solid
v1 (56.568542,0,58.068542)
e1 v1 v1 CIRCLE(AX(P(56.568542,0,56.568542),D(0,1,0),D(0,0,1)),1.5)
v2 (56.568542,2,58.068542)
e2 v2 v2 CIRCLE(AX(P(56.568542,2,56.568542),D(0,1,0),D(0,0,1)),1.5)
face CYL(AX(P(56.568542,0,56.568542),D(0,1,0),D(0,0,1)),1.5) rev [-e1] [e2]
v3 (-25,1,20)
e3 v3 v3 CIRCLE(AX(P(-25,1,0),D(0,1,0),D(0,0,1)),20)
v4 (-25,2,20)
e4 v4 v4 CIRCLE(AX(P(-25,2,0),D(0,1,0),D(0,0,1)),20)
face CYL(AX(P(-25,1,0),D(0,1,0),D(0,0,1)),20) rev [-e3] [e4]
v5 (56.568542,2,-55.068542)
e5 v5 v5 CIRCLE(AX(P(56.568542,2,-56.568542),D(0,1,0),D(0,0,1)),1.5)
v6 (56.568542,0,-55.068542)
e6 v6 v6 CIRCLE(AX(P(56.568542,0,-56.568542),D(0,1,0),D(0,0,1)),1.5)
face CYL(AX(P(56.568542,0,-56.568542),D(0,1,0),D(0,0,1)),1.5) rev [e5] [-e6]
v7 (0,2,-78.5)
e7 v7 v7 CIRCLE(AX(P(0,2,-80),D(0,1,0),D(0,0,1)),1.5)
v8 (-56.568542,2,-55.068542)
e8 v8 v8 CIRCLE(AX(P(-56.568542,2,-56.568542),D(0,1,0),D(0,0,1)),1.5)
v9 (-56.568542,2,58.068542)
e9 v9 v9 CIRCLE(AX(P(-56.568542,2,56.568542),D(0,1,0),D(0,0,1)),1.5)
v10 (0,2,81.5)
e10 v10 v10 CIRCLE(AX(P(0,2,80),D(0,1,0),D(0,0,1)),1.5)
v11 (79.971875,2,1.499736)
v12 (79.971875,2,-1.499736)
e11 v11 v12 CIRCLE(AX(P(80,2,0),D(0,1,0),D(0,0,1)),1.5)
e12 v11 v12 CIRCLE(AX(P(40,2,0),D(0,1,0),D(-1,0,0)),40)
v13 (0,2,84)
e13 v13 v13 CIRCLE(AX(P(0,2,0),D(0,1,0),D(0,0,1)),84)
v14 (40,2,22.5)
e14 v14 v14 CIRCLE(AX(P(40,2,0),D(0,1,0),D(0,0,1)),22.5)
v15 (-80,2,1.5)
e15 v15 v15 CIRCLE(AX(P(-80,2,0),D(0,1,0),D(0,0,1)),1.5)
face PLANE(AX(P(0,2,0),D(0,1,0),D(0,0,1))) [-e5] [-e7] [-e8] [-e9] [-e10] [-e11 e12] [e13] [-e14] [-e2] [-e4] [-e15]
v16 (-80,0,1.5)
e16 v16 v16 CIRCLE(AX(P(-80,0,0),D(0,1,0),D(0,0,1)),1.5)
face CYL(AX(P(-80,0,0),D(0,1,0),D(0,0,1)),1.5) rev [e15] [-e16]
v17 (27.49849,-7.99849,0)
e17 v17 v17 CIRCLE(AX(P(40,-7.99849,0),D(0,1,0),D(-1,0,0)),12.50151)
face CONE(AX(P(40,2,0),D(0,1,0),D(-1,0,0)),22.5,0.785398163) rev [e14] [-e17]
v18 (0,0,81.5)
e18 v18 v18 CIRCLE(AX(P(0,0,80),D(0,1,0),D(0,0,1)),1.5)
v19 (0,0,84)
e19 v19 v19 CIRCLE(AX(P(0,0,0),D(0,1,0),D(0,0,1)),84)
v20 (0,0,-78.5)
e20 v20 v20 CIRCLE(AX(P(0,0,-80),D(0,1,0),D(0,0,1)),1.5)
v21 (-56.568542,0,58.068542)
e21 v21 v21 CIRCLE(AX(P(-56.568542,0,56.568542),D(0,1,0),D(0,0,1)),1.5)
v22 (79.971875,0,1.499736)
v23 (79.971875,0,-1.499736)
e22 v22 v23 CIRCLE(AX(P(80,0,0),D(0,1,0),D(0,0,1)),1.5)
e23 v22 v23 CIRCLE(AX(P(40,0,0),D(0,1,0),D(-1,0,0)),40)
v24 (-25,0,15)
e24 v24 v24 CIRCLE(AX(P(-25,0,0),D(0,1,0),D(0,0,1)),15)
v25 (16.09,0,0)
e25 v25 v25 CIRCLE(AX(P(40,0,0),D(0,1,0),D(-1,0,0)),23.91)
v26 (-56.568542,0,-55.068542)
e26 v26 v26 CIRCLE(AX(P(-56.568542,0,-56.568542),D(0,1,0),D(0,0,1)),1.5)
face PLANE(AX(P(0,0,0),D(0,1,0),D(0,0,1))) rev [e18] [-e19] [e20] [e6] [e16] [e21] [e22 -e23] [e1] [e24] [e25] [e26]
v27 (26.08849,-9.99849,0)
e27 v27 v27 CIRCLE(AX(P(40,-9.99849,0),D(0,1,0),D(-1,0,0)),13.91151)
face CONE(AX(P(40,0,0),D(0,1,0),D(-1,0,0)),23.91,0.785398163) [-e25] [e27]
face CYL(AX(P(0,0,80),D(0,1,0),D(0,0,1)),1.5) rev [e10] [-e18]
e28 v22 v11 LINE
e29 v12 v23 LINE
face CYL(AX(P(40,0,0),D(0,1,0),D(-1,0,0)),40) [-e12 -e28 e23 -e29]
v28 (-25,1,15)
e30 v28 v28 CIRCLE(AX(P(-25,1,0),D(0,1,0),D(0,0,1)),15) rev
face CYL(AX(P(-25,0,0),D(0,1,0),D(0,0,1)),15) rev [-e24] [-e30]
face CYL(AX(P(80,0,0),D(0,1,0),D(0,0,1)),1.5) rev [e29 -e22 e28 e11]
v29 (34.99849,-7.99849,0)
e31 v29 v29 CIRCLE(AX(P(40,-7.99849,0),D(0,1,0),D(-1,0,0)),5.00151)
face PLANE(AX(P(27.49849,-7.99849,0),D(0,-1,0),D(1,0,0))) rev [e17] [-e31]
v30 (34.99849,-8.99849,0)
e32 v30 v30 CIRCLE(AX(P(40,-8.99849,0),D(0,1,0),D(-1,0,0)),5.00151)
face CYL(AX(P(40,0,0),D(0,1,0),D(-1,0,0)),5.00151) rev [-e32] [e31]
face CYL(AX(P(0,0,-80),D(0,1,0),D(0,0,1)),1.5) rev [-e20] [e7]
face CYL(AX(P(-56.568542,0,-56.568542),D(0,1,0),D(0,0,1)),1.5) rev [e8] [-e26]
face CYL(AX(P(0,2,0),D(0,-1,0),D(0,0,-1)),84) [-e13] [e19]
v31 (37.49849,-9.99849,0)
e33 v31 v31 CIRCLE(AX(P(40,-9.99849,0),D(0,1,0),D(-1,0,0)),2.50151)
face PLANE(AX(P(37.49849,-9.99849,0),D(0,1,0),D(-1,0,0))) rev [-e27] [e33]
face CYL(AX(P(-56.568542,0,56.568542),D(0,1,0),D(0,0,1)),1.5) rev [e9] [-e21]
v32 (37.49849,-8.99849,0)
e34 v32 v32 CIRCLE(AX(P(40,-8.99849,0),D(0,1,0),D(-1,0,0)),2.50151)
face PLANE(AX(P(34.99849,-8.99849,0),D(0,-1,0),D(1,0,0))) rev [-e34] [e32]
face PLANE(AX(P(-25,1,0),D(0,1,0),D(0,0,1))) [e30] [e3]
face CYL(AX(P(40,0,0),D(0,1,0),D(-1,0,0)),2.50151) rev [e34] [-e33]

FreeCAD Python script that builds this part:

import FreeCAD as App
import Part
import Sketcher
from FreeCAD import Vector
Q = App.Units.Quantity


def add_polygon(sketch, points):
    """Adds a closed chain of lines whose ends are joined by coincident constraints."""
    first, n = sketch.GeometryCount, len(points)
    for a, b in zip(points, points[1:] + points[:1]):
        sketch.addGeometry(Part.LineSegment(App.Vector(*a, 0), App.Vector(*b, 0)), False)
    for i in range(n):
        sketch.addConstraint(Sketcher.Constraint("Coincident", first + i, 2, first + (i + 1) % n, 1))

doc = App.newDocument("Part")
params = doc.addObject("Spreadsheet::Sheet", "Params")
for row, (alias, value) in enumerate([
    ("sketch1_diameter", "168 mm"),
    ("pad1_length", "2 mm"),
    ("sketch2_diameter", "3 mm"),
    ("pocket1_length", "2 mm"),
    ("sketch3_diameter", "30 mm"),
    ("sketch3_diameter2", "45 mm"),
    ("pocket2_length", "2 mm"),
    ("sketch4_diameter", "40 mm"),
    ("pocket3_length", "1 mm"),
    ("sketch5_height", "2 mm"),
    ("sketch5_width", "17.5 mm"),
    ("sketch5_width2", "2.5 mm"),
    ("sketch5_width3", "7.5 mm"),
    ("sketch5_width4", "16.09 mm"),
    ("revolution_angle", "360 deg"),
], start=1):
    params.set(f"A{row}", alias)
    params.set(f"B{row}", "=" + value)
    params.setAlias(f"B{row}", alias)

body = doc.addObject("PartDesign::Body", "Body")

sketch1 = doc.addObject("Sketcher::SketchObject", "Sketch")
body.addObject(sketch1)
sketch1.AttachmentSupport = (doc.XZ_Plane, [""])
sketch1.MapMode = "FlatFace"
sketch1.addGeometry(Part.Circle(Vector(0, 0, 0), Vector(0, 0, 1), 84), False)
sketch1.addConstraint([
    Sketcher.Constraint("Coincident", 0, 3, -1, 1),
    Sketcher.Constraint("Diameter", 0, Q("168 mm")),
])
sketch1.setExpression("Constraints[1]", "Params.sketch1_diameter")
pad1 = doc.addObject("PartDesign::Pad", "Pad")
body.addObject(pad1)
pad1.Profile = sketch1
pad1.setExpression("Length", "Params.pad1_length")
pad1.Reversed = True

sketch2 = doc.addObject("Sketcher::SketchObject", "Sketch001")
body.addObject(sketch2)
sketch2.AttachmentSupport = (doc.XZ_Plane, [""])
sketch2.MapMode = "FlatFace"
sketch2.AttachmentOffset = App.Placement(Vector(0, 0, -2), App.Rotation())
sketch2.addGeometry([
    Part.Circle(Vector(0, -80, 0), Vector(0, 0, 1), 1.5),
    Part.Circle(Vector(56.568542, -56.568542, 0), Vector(0, 0, 1), 1.5),
    Part.Circle(Vector(80, 0, 0), Vector(0, 0, 1), 1.5),
    Part.Circle(Vector(56.568542, 56.568542, 0), Vector(0, 0, 1), 1.5),
    Part.Circle(Vector(0, 80, 0), Vector(0, 0, 1), 1.5),
    Part.Circle(Vector(-56.568542, 56.568542, 0), Vector(0, 0, 1), 1.5),
    Part.Circle(Vector(-80, 0, 0), Vector(0, 0, 1), 1.5),
    Part.Circle(Vector(-56.568542, -56.568542, 0), Vector(0, 0, 1), 1.5),
], False)
sketch2.addConstraint([
    Sketcher.Constraint("Equal", 0, 1),
    Sketcher.Constraint("Equal", 1, 2),
    Sketcher.Constraint("Equal", 2, 3),
    Sketcher.Constraint("Equal", 3, 4),
    Sketcher.Constraint("Equal", 4, 5),
    Sketcher.Constraint("Equal", 5, 6),
    Sketcher.Constraint("Equal", 6, 7),
    Sketcher.Constraint("Symmetric", 0, 3, 4, 3, -1, 1),
    Sketcher.Constraint("Symmetric", 1, 3, 5, 3, -1, 1),
    Sketcher.Constraint("Symmetric", 2, 3, 6, 3, -1, 1),
    Sketcher.Constraint("Symmetric", 3, 3, 7, 3, -1, 1),
    Sketcher.Constraint("Symmetric", 3, 3, 5, 3, -2),
    Sketcher.Constraint("PointOnObject", 0, 3, -2),
    Sketcher.Constraint("PointOnObject", 2, 3, -1),
    Sketcher.Constraint("Diameter", 0, Q("3 mm")),
    Sketcher.Constraint("DistanceY", 0, 3, -1, 1, Q("80 mm")),
    Sketcher.Constraint("DistanceX", -1, 1, 2, 3, Q("80 mm")),
    Sketcher.Constraint("DistanceX", -1, 1, 1, 3, Q("56.568542 mm")),
    Sketcher.Constraint("DistanceY", 1, 3, -1, 1, Q("56.568542 mm")),
])
sketch2.setExpression("Constraints[14]", "Params.sketch2_diameter")
pocket1 = doc.addObject("PartDesign::Pocket", "Pocket")
body.addObject(pocket1)
pocket1.Profile = sketch2
pocket1.setExpression("Length", "Params.pocket1_length")
pocket1.Reversed = True

sketch3 = doc.addObject("Sketcher::SketchObject", "Sketch002")
body.addObject(sketch3)
sketch3.AttachmentSupport = (doc.XZ_Plane, [""])
sketch3.MapMode = "FlatFace"
sketch3.AttachmentOffset = App.Placement(Vector(0, 0, -2), App.Rotation())
sketch3.addGeometry([
    Part.Circle(Vector(-25, 0, 0), Vector(0, 0, 1), 15),
    Part.Circle(Vector(40, 0, 0), Vector(0, 0, 1), 22.5),
], False)
sketch3.addConstraint([
    Sketcher.Constraint("PointOnObject", 0, 3, -1),
    Sketcher.Constraint("PointOnObject", 1, 3, -1),
    Sketcher.Constraint("Diameter", 0, Q("30 mm")),
    Sketcher.Constraint("Diameter", 1, Q("45 mm")),
    Sketcher.Constraint("DistanceX", 0, 3, -1, 1, Q("25 mm")),
    Sketcher.Constraint("DistanceX", -1, 1, 1, 3, Q("40 mm")),
])
sketch3.setExpression("Constraints[2]", "Params.sketch3_diameter")
sketch3.setExpression("Constraints[3]", "Params.sketch3_diameter2")
pocket2 = doc.addObject("PartDesign::Pocket", "Pocket001")
body.addObject(pocket2)
pocket2.Profile = sketch3
pocket2.setExpression("Length", "Params.pocket2_length")
pocket2.Reversed = True

sketch4 = doc.addObject("Sketcher::SketchObject", "Sketch003")
body.addObject(sketch4)
sketch4.AttachmentSupport = (doc.XZ_Plane, [""])
sketch4.MapMode = "FlatFace"
sketch4.AttachmentOffset = App.Placement(Vector(0, 0, -2), App.Rotation())
sketch4.addGeometry(Part.Circle(Vector(-25, 0, 0), Vector(0, 0, 1), 20), False)
sketch4.addConstraint([
    Sketcher.Constraint("PointOnObject", 0, 3, -1),
    Sketcher.Constraint("Diameter", 0, Q("40 mm")),
    Sketcher.Constraint("DistanceX", 0, 3, -1, 1, Q("25 mm")),
])
sketch4.setExpression("Constraints[1]", "Params.sketch4_diameter")
pocket3 = doc.addObject("PartDesign::Pocket", "Pocket002")
body.addObject(pocket3)
pocket3.Profile = sketch4
pocket3.setExpression("Length", "Params.pocket3_length")
pocket3.Reversed = True

sketch5 = doc.addObject("Sketcher::SketchObject", "Sketch004")
body.addObject(sketch5)
sketch5.AttachmentSupport = (doc.XY_Plane, [""])
sketch5.MapMode = "FlatFace"
add_polygon(sketch5, [(17.5, 2), (0, 2), (0, 0), (16.09, 0), (26.08849, -9.99849), (37.49849, -9.99849), (37.49849, -8.99849), (34.99849, -8.99849), (34.99849, -7.99849), (27.49849, -7.99849)])
sketch5.addGeometry(Part.LineSegment(Vector(40, 2, 0), Vector(40, -9.99849, 0)), True)
sketch5.addConstraint([
    Sketcher.Constraint("Horizontal", 0),
    Sketcher.Constraint("Vertical", 1),
    Sketcher.Constraint("Horizontal", 2),
    Sketcher.Constraint("Horizontal", 4),
    Sketcher.Constraint("Vertical", 5),
    Sketcher.Constraint("Horizontal", 6),
    Sketcher.Constraint("Vertical", 7),
    Sketcher.Constraint("Horizontal", 8),
    Sketcher.Constraint("Vertical", 10),
    Sketcher.Constraint("Coincident", 1, 2, -1, 1),
    Sketcher.Constraint("Parallel", 3, 9),
    Sketcher.Constraint("Horizontal", 9, 2, 10, 1),
    Sketcher.Constraint("Horizontal", 4, 2, 10, 2),
    Sketcher.Constraint("Equal", 5, 7),
    Sketcher.Constraint("Equal", 3, 9),
    Sketcher.Constraint("DistanceY", 1, 2, 1, 1, Q("2 mm")),
    Sketcher.Constraint("Angle", 3, Q("-45 deg")),
    Sketcher.Constraint("DistanceX", 0, 2, 0, 1, Q("17.5 mm")),
    Sketcher.Constraint("DistanceX", 6, 2, 6, 1, Q("2.5 mm")),
    Sketcher.Constraint("DistanceX", 8, 2, 8, 1, Q("7.5 mm")),
    Sketcher.Constraint("DistanceX", -1, 1, 10, 1, Q("40 mm")),
    Sketcher.Constraint("DistanceX", 2, 1, 2, 2, Q("16.09 mm")),
    Sketcher.Constraint("Distance", 3, Q("14.14 mm")),
])
sketch5.setExpression("Constraints[25]", "Params.sketch5_height")
sketch5.setExpression("Constraints[27]", "Params.sketch5_width")
sketch5.setExpression("Constraints[28]", "Params.sketch5_width2")
sketch5.setExpression("Constraints[29]", "Params.sketch5_width3")
sketch5.setExpression("Constraints[31]", "Params.sketch5_width4")
revolution = doc.addObject("PartDesign::Revolution", "Revolution")
body.addObject(revolution)
revolution.Profile = sketch5
revolution.ReferenceAxis = (sketch5, ["Axis0"])
revolution.setExpression("Angle", "Params.revolution_angle")

doc.recompute()
